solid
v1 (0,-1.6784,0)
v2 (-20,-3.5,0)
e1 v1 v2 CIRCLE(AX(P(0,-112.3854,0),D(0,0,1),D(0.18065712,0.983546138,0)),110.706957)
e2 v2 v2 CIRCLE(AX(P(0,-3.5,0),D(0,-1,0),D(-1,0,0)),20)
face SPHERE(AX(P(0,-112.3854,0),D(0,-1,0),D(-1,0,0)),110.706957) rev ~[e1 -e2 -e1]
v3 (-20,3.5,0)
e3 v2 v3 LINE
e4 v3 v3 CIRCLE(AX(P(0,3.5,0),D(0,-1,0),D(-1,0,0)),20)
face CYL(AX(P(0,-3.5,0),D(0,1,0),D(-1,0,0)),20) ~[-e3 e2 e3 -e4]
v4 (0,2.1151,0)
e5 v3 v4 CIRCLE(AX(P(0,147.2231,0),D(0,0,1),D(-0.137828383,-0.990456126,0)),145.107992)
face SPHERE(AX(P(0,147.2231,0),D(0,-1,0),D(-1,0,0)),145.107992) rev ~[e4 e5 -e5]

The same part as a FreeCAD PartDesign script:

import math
import FreeCAD as App
import Part
import Sketcher

doc = App.newDocument("Part")
params = doc.addObject("Spreadsheet::Sheet", "Params")
for row, (alias, value) in enumerate([
    ("sketch1_height", "7 mm"),
    ("revolution_angle", "360 deg"),
], start=1):
    params.set(f"A{row}", alias)
    params.set(f"B{row}", "=" + value)
    params.setAlias(f"B{row}", alias)

body = doc.addObject("PartDesign::Body", "Body")

# Sketch on XY plane
sketch1 = body.newObject("Sketcher::SketchObject", "Sketch")
sketch1.AttachmentSupport = (doc.getObject("XY_Plane"), [""])
sketch1.MapMode = "FlatFace"
sketch1.addGeometry([
    Part.LineSegment(App.Vector(-20, 3.5, 0), App.Vector(-20, -3.5, 0)),
    Part.ArcOfCircle(Part.Circle(App.Vector(0, -112.3854, 0), App.Vector(0, 0, 1), 110.706957), math.radians(90), math.radians(100.408038)),
    Part.LineSegment(App.Vector(0, -1.6784, 0), App.Vector(0, 2.1151, 0)),
    Part.ArcOfCircle(Part.Circle(App.Vector(0, 147.2231, 0), App.Vector(0, 0, 1), 145.107992), math.radians(-97.922204), math.radians(-90)),
], False)
sketch1.addConstraint([
    Sketcher.Constraint("Coincident", 0, 2, 1, 2),
    Sketcher.Constraint("Coincident", 1, 1, 2, 1),
    Sketcher.Constraint("Coincident", 2, 2, 3, 2),
    Sketcher.Constraint("Coincident", 3, 1, 0, 1),
    Sketcher.Constraint("Vertical", 0),
    Sketcher.Constraint("Vertical", 2),
    Sketcher.Constraint("PointOnObject", 1, 3, -2),
    Sketcher.Constraint("PointOnObject", 3, 3, -2),
    Sketcher.Constraint("PointOnObject", 1, 1, -2),
    Sketcher.Constraint("DistanceY", 0, 2, 0, 1, 7.0),
    Sketcher.Constraint("DistanceX", 0, 2, -1, 1, 20.0),
    Sketcher.Constraint("Radius", 1, 110.707),
    Sketcher.Constraint("Radius", 3, 145.108),
    Sketcher.Constraint("DistanceY", 0, 2, -1, 1, 3.5),
])
sketch1.setExpression("Constraints[9]", "Params.sketch1_height")
revolution = body.newObject("PartDesign::Revolution", "Revolution")
revolution.Profile = sketch1
revolution.ReferenceAxis = (sketch1, ["V_Axis"])
revolution.setExpression("Angle", "Params.revolution_angle")

doc.recompute()
